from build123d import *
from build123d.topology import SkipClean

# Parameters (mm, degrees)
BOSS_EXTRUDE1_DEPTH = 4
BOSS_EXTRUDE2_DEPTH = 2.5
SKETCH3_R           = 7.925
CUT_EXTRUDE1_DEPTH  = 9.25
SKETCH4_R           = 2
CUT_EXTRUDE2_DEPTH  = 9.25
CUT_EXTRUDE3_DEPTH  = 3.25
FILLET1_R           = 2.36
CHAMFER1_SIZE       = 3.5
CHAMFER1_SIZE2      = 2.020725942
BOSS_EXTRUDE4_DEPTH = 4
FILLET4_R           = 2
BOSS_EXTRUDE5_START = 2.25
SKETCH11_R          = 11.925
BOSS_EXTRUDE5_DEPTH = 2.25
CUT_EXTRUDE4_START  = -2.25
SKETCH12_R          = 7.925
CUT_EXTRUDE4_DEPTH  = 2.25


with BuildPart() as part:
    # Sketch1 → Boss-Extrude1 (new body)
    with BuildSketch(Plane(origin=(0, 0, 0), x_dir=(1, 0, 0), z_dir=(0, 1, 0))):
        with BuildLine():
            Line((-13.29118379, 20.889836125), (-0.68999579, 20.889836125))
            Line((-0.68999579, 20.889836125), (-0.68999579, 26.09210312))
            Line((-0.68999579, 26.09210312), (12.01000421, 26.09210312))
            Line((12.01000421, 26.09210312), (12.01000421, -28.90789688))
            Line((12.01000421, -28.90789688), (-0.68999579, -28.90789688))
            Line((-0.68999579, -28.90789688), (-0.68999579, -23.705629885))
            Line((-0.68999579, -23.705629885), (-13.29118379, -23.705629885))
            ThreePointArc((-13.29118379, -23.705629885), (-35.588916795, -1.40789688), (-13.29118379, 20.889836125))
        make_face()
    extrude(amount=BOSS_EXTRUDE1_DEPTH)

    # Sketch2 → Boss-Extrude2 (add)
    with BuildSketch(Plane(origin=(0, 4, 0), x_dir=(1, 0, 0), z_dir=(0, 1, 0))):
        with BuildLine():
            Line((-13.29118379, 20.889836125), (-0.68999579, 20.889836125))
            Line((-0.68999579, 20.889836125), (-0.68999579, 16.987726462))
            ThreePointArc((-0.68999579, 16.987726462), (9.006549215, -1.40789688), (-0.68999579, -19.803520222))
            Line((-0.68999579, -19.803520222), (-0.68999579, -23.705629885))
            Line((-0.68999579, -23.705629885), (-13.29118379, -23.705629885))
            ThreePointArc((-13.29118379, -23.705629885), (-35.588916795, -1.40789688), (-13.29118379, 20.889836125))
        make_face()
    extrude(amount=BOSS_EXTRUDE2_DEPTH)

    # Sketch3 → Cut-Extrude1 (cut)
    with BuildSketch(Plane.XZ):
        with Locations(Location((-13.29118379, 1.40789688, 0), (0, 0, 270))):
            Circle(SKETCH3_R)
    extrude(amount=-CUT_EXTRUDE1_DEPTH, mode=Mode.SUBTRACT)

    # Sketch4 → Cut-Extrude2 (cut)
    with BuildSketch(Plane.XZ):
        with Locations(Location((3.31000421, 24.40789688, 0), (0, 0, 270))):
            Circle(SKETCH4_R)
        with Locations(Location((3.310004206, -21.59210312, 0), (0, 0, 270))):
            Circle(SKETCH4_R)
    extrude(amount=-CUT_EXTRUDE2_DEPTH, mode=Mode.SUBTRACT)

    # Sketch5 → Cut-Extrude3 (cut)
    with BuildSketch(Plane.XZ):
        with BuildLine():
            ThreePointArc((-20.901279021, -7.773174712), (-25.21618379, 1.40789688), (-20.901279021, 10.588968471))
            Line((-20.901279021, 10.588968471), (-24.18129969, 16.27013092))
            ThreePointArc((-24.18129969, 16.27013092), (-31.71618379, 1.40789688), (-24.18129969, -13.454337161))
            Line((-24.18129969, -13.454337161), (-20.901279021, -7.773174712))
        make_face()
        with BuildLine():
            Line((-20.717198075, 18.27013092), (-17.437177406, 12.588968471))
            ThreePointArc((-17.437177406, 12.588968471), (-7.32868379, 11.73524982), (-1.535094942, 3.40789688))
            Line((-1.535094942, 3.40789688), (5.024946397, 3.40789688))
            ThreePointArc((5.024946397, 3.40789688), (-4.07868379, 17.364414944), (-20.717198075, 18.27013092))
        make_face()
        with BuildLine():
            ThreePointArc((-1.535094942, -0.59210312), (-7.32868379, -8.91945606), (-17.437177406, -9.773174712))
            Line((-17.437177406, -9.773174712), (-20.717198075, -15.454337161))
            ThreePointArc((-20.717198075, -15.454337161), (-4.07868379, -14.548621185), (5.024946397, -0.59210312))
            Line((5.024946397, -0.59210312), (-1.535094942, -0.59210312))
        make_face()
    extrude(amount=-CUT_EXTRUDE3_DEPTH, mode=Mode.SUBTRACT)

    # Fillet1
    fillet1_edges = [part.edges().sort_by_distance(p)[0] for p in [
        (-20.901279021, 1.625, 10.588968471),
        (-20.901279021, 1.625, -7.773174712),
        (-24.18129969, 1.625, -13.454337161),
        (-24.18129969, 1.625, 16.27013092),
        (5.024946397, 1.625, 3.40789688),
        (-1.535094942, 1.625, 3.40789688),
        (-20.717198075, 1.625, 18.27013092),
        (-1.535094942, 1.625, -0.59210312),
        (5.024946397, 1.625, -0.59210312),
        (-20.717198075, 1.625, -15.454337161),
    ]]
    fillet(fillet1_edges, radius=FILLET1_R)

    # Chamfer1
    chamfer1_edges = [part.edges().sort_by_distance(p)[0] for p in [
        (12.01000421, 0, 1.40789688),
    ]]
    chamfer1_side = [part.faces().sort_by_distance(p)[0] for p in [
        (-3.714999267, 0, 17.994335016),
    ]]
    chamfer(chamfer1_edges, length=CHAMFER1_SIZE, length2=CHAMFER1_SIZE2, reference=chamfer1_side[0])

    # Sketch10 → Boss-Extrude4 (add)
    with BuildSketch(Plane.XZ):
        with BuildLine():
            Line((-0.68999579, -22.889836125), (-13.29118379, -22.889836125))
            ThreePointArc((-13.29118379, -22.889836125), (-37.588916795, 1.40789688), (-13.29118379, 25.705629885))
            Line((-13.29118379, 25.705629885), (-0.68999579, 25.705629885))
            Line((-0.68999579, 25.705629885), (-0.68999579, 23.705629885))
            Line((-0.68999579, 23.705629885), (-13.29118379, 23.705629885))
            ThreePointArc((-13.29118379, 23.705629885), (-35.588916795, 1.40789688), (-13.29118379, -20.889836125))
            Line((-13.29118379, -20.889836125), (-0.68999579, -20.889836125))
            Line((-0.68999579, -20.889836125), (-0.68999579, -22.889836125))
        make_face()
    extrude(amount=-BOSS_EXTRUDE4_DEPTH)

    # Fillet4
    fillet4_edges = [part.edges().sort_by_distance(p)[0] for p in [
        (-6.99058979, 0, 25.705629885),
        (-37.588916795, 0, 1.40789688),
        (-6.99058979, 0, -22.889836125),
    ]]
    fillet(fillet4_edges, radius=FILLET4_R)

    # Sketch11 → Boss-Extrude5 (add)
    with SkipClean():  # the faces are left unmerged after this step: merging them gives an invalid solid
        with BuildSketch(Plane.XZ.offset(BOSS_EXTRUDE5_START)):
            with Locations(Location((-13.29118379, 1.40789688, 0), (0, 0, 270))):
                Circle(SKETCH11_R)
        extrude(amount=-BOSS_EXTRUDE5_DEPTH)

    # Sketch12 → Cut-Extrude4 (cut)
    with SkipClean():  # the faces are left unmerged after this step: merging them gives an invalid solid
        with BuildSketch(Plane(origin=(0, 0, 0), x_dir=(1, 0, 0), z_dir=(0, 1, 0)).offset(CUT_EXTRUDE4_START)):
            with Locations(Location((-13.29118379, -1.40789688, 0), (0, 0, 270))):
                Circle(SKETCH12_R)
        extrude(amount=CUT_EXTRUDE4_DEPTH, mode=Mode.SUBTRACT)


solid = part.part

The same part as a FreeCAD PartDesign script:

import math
import FreeCAD as App
import Part
import Sketcher

V = App.Vector
Q = App.Units.Quantity


def edges_at(feature, points):
    """Names of the edges that pass closest to the given points."""
    edges = feature.Shape.Edges
    near = lambda p: min(range(len(edges)), key=lambda i: edges[i].distToShape(Part.Vertex(*p))[0])
    return sorted({f"Edge{near(p) + 1}" for p in points})

doc = App.newDocument("Part")
body = doc.addObject("PartDesign::Body", "Body")

sketch1 = body.newObject("Sketcher::SketchObject", "Sketch")
sketch1.AttachmentSupport = (doc.getObject("XZ_Plane"), [""])
sketch1.MapMode = "FlatFace"
sketch1.addGeometry(Part.LineSegment(V(-1, -21, 0), V(-13, -21, 0)), False)
sketch1.addGeometry(Part.ArcOfCircle(Part.Circle(V(-13, 1, 0), V(0, 0, 1), 22), math.radians(90), math.radians(270)), False)
sketch1.addGeometry(Part.LineSegment(V(-13, 24, 0), V(-1, 24, 0)), False)
sketch1.addGeometry(Part.LineSegment(V(-1, 24, 0), V(-1, 29, 0)), False)
sketch1.addGeometry(Part.LineSegment(V(-1, 29, 0), V(12, 29, 0)), False)
sketch1.addGeometry(Part.LineSegment(V(12, 29, 0), V(12, -26, 0)), False)
sketch1.addGeometry(Part.LineSegment(V(12, -26, 0), V(-1, -26, 0)), False)
sketch1.addGeometry(Part.LineSegment(V(-1, -26, 0), V(-1, -21, 0)), False)
sketch1.addConstraint(Sketcher.Constraint("Tangent", 0, 2, 1, 2))
sketch1.addConstraint(Sketcher.Constraint("Tangent", 1, 1, 2, 1))
sketch1.addConstraint(Sketcher.Constraint("Coincident", 2, 2, 3, 1))
sketch1.addConstraint(Sketcher.Constraint("Coincident", 3, 2, 4, 1))
sketch1.addConstraint(Sketcher.Constraint("Coincident", 4, 2, 5, 1))
sketch1.addConstraint(Sketcher.Constraint("Coincident", 5, 2, 6, 1))
sketch1.addConstraint(Sketcher.Constraint("Coincident", 6, 2, 7, 1))
sketch1.addConstraint(Sketcher.Constraint("Coincident", 7, 2, 0, 1))
sketch1.addConstraint(Sketcher.Constraint("Horizontal", 0))
sketch1.addConstraint(Sketcher.Constraint("Horizontal", 2))
sketch1.addConstraint(Sketcher.Constraint("Vertical", 3))
sketch1.addConstraint(Sketcher.Constraint("Horizontal", 4))
sketch1.addConstraint(Sketcher.Constraint("Vertical", 5))
sketch1.addConstraint(Sketcher.Constraint("Horizontal", 6))
sketch1.addConstraint(Sketcher.Constraint("Vertical", 7))
sketch1.addConstraint(Sketcher.Constraint("Vertical", 3, 2, 6, 2))
sketch1.addConstraint(Sketcher.Constraint("Equal", 3, 7))
sketch1.addConstraint(Sketcher.Constraint("DistanceY", 5, 2, 5, 1, Q("55 mm")))
sketch1.addConstraint(Sketcher.Constraint("DistanceX", 4, 1, 4, 2, Q("12.7 mm")))
sketch1.addConstraint(Sketcher.Constraint("Radius", 1, Q("22.297733 mm")))
sketch1.addConstraint(Sketcher.Constraint("DistanceX", 0, 2, 0, 1, Q("12.601188 mm")))
sketch1.addConstraint(Sketcher.Constraint("DistanceY", -1, 1, 1, 1, Q("23.70563 mm")))
sketch1.addConstraint(Sketcher.Constraint("DistanceX", 1, 3, -1, 1, Q("13.291184 mm")))
pad1 = body.newObject("PartDesign::Pad", "Pad")
pad1.Profile = sketch1
pad1.Length = 4
pad1.Reversed = True

sketch2 = body.newObject("Sketcher::SketchObject", "Sketch001")
sketch2.AttachmentSupport = (doc.getObject("XZ_Plane"), [""])
sketch2.MapMode = "FlatFace"
sketch2.AttachmentOffset = App.Placement(V(0, 0, -4), App.Rotation())
sketch2.addGeometry(Part.LineSegment(V(-0.7, -20.9, 0), V(-13.3, -20.9, 0)), False)
sketch2.addGeometry(Part.ArcOfCircle(Part.Circle(V(-13.3, 1.4, 0), V(0, 0, 1), 22.3), math.radians(90), math.radians(270)), False)
sketch2.addGeometry(Part.LineSegment(V(-13.3, 23.7, 0), V(-0.7, 23.7, 0)), False)
sketch2.addGeometry(Part.LineSegment(V(-0.7, 23.7, 0), V(-0.7, 19.8, 0)), False)
sketch2.addGeometry(Part.ArcOfCircle(Part.Circle(V(-13.3, 1.4, 0), V(0, 0, 1), 22.3), math.radians(-56), math.radians(56)), False)
sketch2.addGeometry(Part.LineSegment(V(-0.7, -17, 0), V(-0.7, -20.9, 0)), False)
sketch2.addConstraint(Sketcher.Constraint("Tangent", 0, 2, 1, 2))
sketch2.addConstraint(Sketcher.Constraint("Tangent", 1, 1, 2, 1))
sketch2.addConstraint(Sketcher.Constraint("Coincident", 2, 2, 3, 1))
sketch2.addConstraint(Sketcher.Constraint("Coincident", 3, 2, 4, 2))
sketch2.addConstraint(Sketcher.Constraint("Coincident", 4, 1, 5, 1))
sketch2.addConstraint(Sketcher.Constraint("Coincident", 5, 2, 0, 1))
sketch2.addConstraint(Sketcher.Constraint("Horizontal", 0))
sketch2.addConstraint(Sketcher.Constraint("Horizontal", 2))
sketch2.addConstraint(Sketcher.Constraint("Vertical", 3))
sketch2.addConstraint(Sketcher.Constraint("Vertical", 5))
sketch2.addConstraint(Sketcher.Constraint("Coincident", 4, 3, 1, 3))
sketch2.addConstraint(Sketcher.Constraint("Equal", 1, 4))
sketch2.addConstraint(Sketcher.Constraint("Vertical", 3, 2, 4, 1))
sketch2.addConstraint(Sketcher.Constraint("Radius", 1, Q("22.297733 mm")))
sketch2.addConstraint(Sketcher.Constraint("DistanceY", 3, 2, 3, 1, Q("3.90211 mm")))
sketch2.addConstraint(Sketcher.Constraint("DistanceY", -1, 1, 1, 1, Q("23.70563 mm")))
sketch2.addConstraint(Sketcher.Constraint("DistanceX", 1, 3, -1, 1, Q("13.291184 mm")))
pad2 = body.newObject("PartDesign::Pad", "Pad001")
pad2.Profile = sketch2
pad2.Length = 2.5
pad2.Reversed = True

sketch3 = body.newObject("Sketcher::SketchObject", "Sketch002")
sketch3.AttachmentSupport = (doc.getObject("XZ_Plane"), [""])
sketch3.MapMode = "FlatFace"
sketch3.addGeometry(Part.Circle(V(-13, 1, 0), V(0, 0, 1), 8), False)
sketch3.addConstraint(Sketcher.Constraint("Diameter", 0, Q("15.85 mm")))
sketch3.addConstraint(Sketcher.Constraint("DistanceX", 0, 3, -1, 1, Q("13.291184 mm")))
sketch3.addConstraint(Sketcher.Constraint("DistanceY", -1, 1, 0, 3, Q("1.407897 mm")))
pocket1 = body.newObject("PartDesign::Pocket", "Pocket")
pocket1.Profile = sketch3
pocket1.Length = 9.25

sketch4 = body.newObject("Sketcher::SketchObject", "Sketch003")
sketch4.AttachmentSupport = (doc.getObject("XZ_Plane"), [""])
sketch4.MapMode = "FlatFace"
sketch4.addGeometry(Part.Circle(V(3.3, 24.4, 0), V(0, 0, 1), 2), False)
sketch4.addGeometry(Part.Circle(V(3.3, -21.6, 0), V(0, 0, 1), 2), False)
sketch4.addConstraint(Sketcher.Constraint("Equal", 0, 1))
sketch4.addConstraint(Sketcher.Constraint("Vertical", 0, 3, 1, 3))
sketch4.addConstraint(Sketcher.Constraint("Diameter", 0, Q("4 mm")))
sketch4.addConstraint(Sketcher.Constraint("DistanceY", 1, 3, 0, 3, Q("46 mm")))
sketch4.addConstraint(Sketcher.Constraint("DistanceX", -1, 1, 0, 3, Q("3.310004 mm")))
sketch4.addConstraint(Sketcher.Constraint("DistanceY", -1, 1, 0, 3, Q("24.407897 mm")))
pocket2 = body.newObject("PartDesign::Pocket", "Pocket001")
pocket2.Profile = sketch4
pocket2.Length = 9.25

sketch5 = body.newObject("Sketcher::SketchObject", "Sketch004")
sketch5.AttachmentSupport = (doc.getObject("XZ_Plane"), [""])
sketch5.MapMode = "FlatFace"
sketch5.addGeometry(Part.ArcOfCircle(Part.Circle(V(-13, 1, 0), V(0, 0, 1), 12), math.radians(130), math.radians(230)), False)
sketch5.addGeometry(Part.LineSegment(V(-21, 11, 0), V(-24, 16, 0)), False)
sketch5.addGeometry(Part.ArcOfCircle(Part.Circle(V(-13, 1, 0), V(0, 0, 1), 18), math.radians(126), math.radians(234)), False)
sketch5.addGeometry(Part.LineSegment(V(-24, -13, 0), V(-21, -8, 0)), False)
sketch5.addGeometry(Part.LineSegment(V(-21, 18, 0), V(-17, 13, 0)), False)
sketch5.addGeometry(Part.ArcOfCircle(Part.Circle(V(-13, 1, 0), V(0, 0, 1), 12), math.radians(10), math.radians(110)), False)
sketch5.addGeometry(Part.LineSegment(V(-2, 3, 0), V(5, 3, 0)), False)
sketch5.addGeometry(Part.ArcOfCircle(Part.Circle(V(-13, 1, 0), V(0, 0, 1), 18), math.radians(6), math.radians(114)), False)
sketch5.addGeometry(Part.ArcOfCircle(Part.Circle(V(-13, 1, 0), V(0, 0, 1), 12), math.radians(-110), math.radians(-10)), False)
sketch5.addGeometry(Part.LineSegment(V(-17, -10, 0), V(-21, -15, 0)), False)
sketch5.addGeometry(Part.ArcOfCircle(Part.Circle(V(-13, 1, 0), V(0, 0, 1), 18), math.radians(-114), math.radians(-6)), False)
sketch5.addGeometry(Part.LineSegment(V(5, -1, 0), V(-2, -1, 0)), False)
sketch5.addConstraint(Sketcher.Constraint("Coincident", 0, 1, 1, 1))
sketch5.addConstraint(Sketcher.Constraint("Coincident", 1, 2, 2, 1))
sketch5.addConstraint(Sketcher.Constraint("Coincident", 2, 2, 3, 1))
sketch5.addConstraint(Sketcher.Constraint("Coincident", 3, 2, 0, 2))
sketch5.addConstraint(Sketcher.Constraint("Coincident", 4, 2, 5, 2))
sketch5.addConstraint(Sketcher.Constraint("Coincident", 5, 1, 6, 1))
sketch5.addConstraint(Sketcher.Constraint("Coincident", 6, 2, 7, 1))
sketch5.addConstraint(Sketcher.Constraint("Coincident", 7, 2, 4, 1))
sketch5.addConstraint(Sketcher.Constraint("Coincident", 8, 1, 9, 1))
sketch5.addConstraint(Sketcher.Constraint("Coincident", 9, 2, 10, 1))
sketch5.addConstraint(Sketcher.Constraint("Coincident", 10, 2, 11, 1))
sketch5.addConstraint(Sketcher.Constraint("Coincident", 11, 2, 8, 2))
sketch5.addConstraint(Sketcher.Constraint("Horizontal", 6))
sketch5.addConstraint(Sketcher.Constraint("Horizontal", 11))
sketch5.addConstraint(Sketcher.Constraint("Coincident", 2, 3, 0, 3))
sketch5.addConstraint(Sketcher.Constraint("Coincident", 5, 3, 0, 3))
sketch5.addConstraint(Sketcher.Constraint("Coincident", 7, 3, 0, 3))
sketch5.addConstraint(Sketcher.Constraint("Coincident", 8, 3, 0, 3))
sketch5.addConstraint(Sketcher.Constraint("Coincident", 10, 3, 0, 3))
sketch5.addConstraint(Sketcher.Constraint("Equal", 0, 5))
sketch5.addConstraint(Sketcher.Constraint("Equal", 2, 7))
sketch5.addConstraint(Sketcher.Constraint("Equal", 5, 8))
sketch5.addConstraint(Sketcher.Constraint("Equal", 7, 10))
sketch5.addConstraint(Sketcher.Constraint("Parallel", 1, 4))
sketch5.addConstraint(Sketcher.Constraint("Parallel", 3, 9))
sketch5.addConstraint(Sketcher.Constraint("Vertical", 1, 2, 2, 2))
sketch5.addConstraint(Sketcher.Constraint("Vertical", 0, 1, 3, 2))
sketch5.addConstraint(Sketcher.Constraint("Vertical", 4, 2, 8, 1))
sketch5.addConstraint(Sketcher.Constraint("Vertical", 6, 2, 10, 2))
sketch5.addConstraint(Sketcher.Constraint("Equal", 3, 4))
sketch5.addConstraint(Sketcher.Constraint("Angle", 1, Q("120 deg")))
sketch5.addConstraint(Sketcher.Constraint("Radius", 0, Q("11.925 mm")))
sketch5.addConstraint(Sketcher.Constraint("Radius", 2, Q("18.425 mm")))
sketch5.addConstraint(Sketcher.Constraint("DistanceY", 0, 1, 4, 2, Q("2 mm")))
sketch5.addConstraint(Sketcher.Constraint("DistanceY", 5, 3, 5, 1, Q("2 mm")))
sketch5.addConstraint(Sketcher.Constraint("DistanceX", 1, 2, -1, 1, Q("24.1813 mm")))
sketch5.addConstraint(Sketcher.Constraint("DistanceY", -1, 1, 0, 1, Q("10.588968 mm")))
pocket3 = body.newObject("PartDesign::Pocket", "Pocket002")
pocket3.Profile = sketch5
pocket3.Length = 3.25
doc.recompute()

fillet = body.newObject("PartDesign::Fillet", "Fillet")
fillet.Base = (pocket3, edges_at(pocket3, [
    (-20.901, 1.625, 10.589),
    (-20.901, 1.625, -7.773),
    (-24.181, 1.625, -13.454),
    (-24.181, 1.625, 16.27),
    (5.025, 1.625, 3.408),
    (-1.535, 1.625, 3.408),
    (-20.717, 1.625, 18.27),
    (-1.535, 1.625, -0.592),
    (5.025, 1.625, -0.592),
    (-20.717, 1.625, -15.454),
]))
fillet.Radius = 2.36
doc.recompute()

chamfer = body.newObject("PartDesign::Chamfer", "Chamfer")
chamfer.Base = (fillet, edges_at(fillet, [(12.01, 0, 1.408)]))
chamfer.ChamferType = "Two distances"
chamfer.Size = 3.5
chamfer.Size2 = 2.020726

sketch6 = body.newObject("Sketcher::SketchObject", "Sketch005")
sketch6.AttachmentSupport = (doc.getObject("XZ_Plane"), [""])
sketch6.MapMode = "FlatFace"
sketch6.addGeometry(Part.LineSegment(V(-13.3, -22.9, 0), V(-0.7, -22.9, 0)), False)
sketch6.addGeometry(Part.LineSegment(V(-0.7, -22.9, 0), V(-0.7, -20.9, 0)), False)
sketch6.addGeometry(Part.LineSegment(V(-0.7, -20.9, 0), V(-13.3, -20.9, 0)), False)
sketch6.addGeometry(Part.ArcOfCircle(Part.Circle(V(-13.3, 1.4, 0), V(0, 0, 1), 22.3), math.radians(90), math.radians(270)), False)
sketch6.addGeometry(Part.LineSegment(V(-13.3, 23.7, 0), V(-0.7, 23.7, 0)), False)
sketch6.addGeometry(Part.LineSegment(V(-0.7, 23.7, 0), V(-0.7, 25.7, 0)), False)
sketch6.addGeometry(Part.LineSegment(V(-0.7, 25.7, 0), V(-13.3, 25.7, 0)), False)
sketch6.addGeometry(Part.ArcOfCircle(Part.Circle(V(-13.3, 1.4, 0), V(0, 0, 1), 24.3), math.radians(90), math.radians(270)), False)
sketch6.addConstraint(Sketcher.Constraint("Coincident", 0, 2, 1, 1))
sketch6.addConstraint(Sketcher.Constraint("Coincident", 1, 2, 2, 1))
sketch6.addConstraint(Sketcher.Constraint("Tangent", 2, 2, 3, 2))
sketch6.addConstraint(Sketcher.Constraint("Tangent", 3, 1, 4, 1))
sketch6.addConstraint(Sketcher.Constraint("Coincident", 4, 2, 5, 1))
sketch6.addConstraint(Sketcher.Constraint("Coincident", 5, 2, 6, 1))
sketch6.addConstraint(Sketcher.Constraint("Tangent", 6, 2, 7, 1))
sketch6.addConstraint(Sketcher.Constraint("Tangent", 7, 2, 0, 1))
sketch6.addConstraint(Sketcher.Constraint("Horizontal", 0))
sketch6.addConstraint(Sketcher.Constraint("Vertical", 1))
sketch6.addConstraint(Sketcher.Constraint("Horizontal", 2))
sketch6.addConstraint(Sketcher.Constraint("Horizontal", 4))
sketch6.addConstraint(Sketcher.Constraint("Vertical", 5))
sketch6.addConstraint(Sketcher.Constraint("Horizontal", 6))
sketch6.addConstraint(Sketcher.Constraint("Coincident", 7, 3, 3, 3))
sketch6.addConstraint(Sketcher.Constraint("Vertical", 1, 2, 4, 2))
sketch6.addConstraint(Sketcher.Constraint("DistanceY", 1, 1, 1, 2, Q("2 mm")))
sketch6.addConstraint(Sketcher.Constraint("Radius", 3, Q("22.297733 mm")))
sketch6.addConstraint(Sketcher.Constraint("DistanceX", 0, 1, 0, 2, Q("12.601188 mm")))
sketch6.addConstraint(Sketcher.Constraint("DistanceY", -1, 1, 3, 1, Q("23.70563 mm")))
sketch6.addConstraint(Sketcher.Constraint("DistanceX", 3, 3, -1, 1, Q("13.291184 mm")))
pad3 = body.newObject("PartDesign::Pad", "Pad002")
pad3.Profile = sketch6
pad3.Length = 4
pad3.Reversed = True
doc.recompute()

fillet2 = body.newObject("PartDesign::Fillet", "Fillet001")
fillet2.Base = (pad3, edges_at(pad3, [(-6.991, 0, 25.706), (-37.589, 0, 1.408), (-6.991, 0, -22.89)]))
fillet2.Radius = 2

sketch7 = body.newObject("Sketcher::SketchObject", "Sketch006")
sketch7.AttachmentSupport = (doc.getObject("XZ_Plane"), [""])
sketch7.MapMode = "FlatFace"
sketch7.AttachmentOffset = App.Placement(V(0, 0, 2.25), App.Rotation())
sketch7.addGeometry(Part.Circle(V(-13, 1, 0), V(0, 0, 1), 12), False)
sketch7.addConstraint(Sketcher.Constraint("Diameter", 0, Q("23.85 mm")))
sketch7.addConstraint(Sketcher.Constraint("DistanceX", 0, 3, -1, 1, Q("13.291184 mm")))
sketch7.addConstraint(Sketcher.Constraint("DistanceY", -1, 1, 0, 3, Q("1.407897 mm")))
pad4 = body.newObject("PartDesign::Pad", "Pad003")
pad4.Profile = sketch7
pad4.Length = 2.25
pad4.Reversed = True

sketch8 = body.newObject("Sketcher::SketchObject", "Sketch007")
sketch8.AttachmentSupport = (doc.getObject("XZ_Plane"), [""])
sketch8.MapMode = "FlatFace"
sketch8.AttachmentOffset = App.Placement(V(0, 0, 2.25), App.Rotation())
sketch8.addGeometry(Part.Circle(V(-13, 1, 0), V(0, 0, 1), 8), False)
sketch8.addConstraint(Sketcher.Constraint("Diameter", 0, Q("15.85 mm")))
sketch8.addConstraint(Sketcher.Constraint("DistanceX", 0, 3, -1, 1, Q("13.291184 mm")))
sketch8.addConstraint(Sketcher.Constraint("DistanceY", -1, 1, 0, 3, Q("1.407897 mm")))
pocket4 = body.newObject("PartDesign::Pocket", "Pocket003")
pocket4.Profile = sketch8
pocket4.Length = 2.25

doc.recompute()
